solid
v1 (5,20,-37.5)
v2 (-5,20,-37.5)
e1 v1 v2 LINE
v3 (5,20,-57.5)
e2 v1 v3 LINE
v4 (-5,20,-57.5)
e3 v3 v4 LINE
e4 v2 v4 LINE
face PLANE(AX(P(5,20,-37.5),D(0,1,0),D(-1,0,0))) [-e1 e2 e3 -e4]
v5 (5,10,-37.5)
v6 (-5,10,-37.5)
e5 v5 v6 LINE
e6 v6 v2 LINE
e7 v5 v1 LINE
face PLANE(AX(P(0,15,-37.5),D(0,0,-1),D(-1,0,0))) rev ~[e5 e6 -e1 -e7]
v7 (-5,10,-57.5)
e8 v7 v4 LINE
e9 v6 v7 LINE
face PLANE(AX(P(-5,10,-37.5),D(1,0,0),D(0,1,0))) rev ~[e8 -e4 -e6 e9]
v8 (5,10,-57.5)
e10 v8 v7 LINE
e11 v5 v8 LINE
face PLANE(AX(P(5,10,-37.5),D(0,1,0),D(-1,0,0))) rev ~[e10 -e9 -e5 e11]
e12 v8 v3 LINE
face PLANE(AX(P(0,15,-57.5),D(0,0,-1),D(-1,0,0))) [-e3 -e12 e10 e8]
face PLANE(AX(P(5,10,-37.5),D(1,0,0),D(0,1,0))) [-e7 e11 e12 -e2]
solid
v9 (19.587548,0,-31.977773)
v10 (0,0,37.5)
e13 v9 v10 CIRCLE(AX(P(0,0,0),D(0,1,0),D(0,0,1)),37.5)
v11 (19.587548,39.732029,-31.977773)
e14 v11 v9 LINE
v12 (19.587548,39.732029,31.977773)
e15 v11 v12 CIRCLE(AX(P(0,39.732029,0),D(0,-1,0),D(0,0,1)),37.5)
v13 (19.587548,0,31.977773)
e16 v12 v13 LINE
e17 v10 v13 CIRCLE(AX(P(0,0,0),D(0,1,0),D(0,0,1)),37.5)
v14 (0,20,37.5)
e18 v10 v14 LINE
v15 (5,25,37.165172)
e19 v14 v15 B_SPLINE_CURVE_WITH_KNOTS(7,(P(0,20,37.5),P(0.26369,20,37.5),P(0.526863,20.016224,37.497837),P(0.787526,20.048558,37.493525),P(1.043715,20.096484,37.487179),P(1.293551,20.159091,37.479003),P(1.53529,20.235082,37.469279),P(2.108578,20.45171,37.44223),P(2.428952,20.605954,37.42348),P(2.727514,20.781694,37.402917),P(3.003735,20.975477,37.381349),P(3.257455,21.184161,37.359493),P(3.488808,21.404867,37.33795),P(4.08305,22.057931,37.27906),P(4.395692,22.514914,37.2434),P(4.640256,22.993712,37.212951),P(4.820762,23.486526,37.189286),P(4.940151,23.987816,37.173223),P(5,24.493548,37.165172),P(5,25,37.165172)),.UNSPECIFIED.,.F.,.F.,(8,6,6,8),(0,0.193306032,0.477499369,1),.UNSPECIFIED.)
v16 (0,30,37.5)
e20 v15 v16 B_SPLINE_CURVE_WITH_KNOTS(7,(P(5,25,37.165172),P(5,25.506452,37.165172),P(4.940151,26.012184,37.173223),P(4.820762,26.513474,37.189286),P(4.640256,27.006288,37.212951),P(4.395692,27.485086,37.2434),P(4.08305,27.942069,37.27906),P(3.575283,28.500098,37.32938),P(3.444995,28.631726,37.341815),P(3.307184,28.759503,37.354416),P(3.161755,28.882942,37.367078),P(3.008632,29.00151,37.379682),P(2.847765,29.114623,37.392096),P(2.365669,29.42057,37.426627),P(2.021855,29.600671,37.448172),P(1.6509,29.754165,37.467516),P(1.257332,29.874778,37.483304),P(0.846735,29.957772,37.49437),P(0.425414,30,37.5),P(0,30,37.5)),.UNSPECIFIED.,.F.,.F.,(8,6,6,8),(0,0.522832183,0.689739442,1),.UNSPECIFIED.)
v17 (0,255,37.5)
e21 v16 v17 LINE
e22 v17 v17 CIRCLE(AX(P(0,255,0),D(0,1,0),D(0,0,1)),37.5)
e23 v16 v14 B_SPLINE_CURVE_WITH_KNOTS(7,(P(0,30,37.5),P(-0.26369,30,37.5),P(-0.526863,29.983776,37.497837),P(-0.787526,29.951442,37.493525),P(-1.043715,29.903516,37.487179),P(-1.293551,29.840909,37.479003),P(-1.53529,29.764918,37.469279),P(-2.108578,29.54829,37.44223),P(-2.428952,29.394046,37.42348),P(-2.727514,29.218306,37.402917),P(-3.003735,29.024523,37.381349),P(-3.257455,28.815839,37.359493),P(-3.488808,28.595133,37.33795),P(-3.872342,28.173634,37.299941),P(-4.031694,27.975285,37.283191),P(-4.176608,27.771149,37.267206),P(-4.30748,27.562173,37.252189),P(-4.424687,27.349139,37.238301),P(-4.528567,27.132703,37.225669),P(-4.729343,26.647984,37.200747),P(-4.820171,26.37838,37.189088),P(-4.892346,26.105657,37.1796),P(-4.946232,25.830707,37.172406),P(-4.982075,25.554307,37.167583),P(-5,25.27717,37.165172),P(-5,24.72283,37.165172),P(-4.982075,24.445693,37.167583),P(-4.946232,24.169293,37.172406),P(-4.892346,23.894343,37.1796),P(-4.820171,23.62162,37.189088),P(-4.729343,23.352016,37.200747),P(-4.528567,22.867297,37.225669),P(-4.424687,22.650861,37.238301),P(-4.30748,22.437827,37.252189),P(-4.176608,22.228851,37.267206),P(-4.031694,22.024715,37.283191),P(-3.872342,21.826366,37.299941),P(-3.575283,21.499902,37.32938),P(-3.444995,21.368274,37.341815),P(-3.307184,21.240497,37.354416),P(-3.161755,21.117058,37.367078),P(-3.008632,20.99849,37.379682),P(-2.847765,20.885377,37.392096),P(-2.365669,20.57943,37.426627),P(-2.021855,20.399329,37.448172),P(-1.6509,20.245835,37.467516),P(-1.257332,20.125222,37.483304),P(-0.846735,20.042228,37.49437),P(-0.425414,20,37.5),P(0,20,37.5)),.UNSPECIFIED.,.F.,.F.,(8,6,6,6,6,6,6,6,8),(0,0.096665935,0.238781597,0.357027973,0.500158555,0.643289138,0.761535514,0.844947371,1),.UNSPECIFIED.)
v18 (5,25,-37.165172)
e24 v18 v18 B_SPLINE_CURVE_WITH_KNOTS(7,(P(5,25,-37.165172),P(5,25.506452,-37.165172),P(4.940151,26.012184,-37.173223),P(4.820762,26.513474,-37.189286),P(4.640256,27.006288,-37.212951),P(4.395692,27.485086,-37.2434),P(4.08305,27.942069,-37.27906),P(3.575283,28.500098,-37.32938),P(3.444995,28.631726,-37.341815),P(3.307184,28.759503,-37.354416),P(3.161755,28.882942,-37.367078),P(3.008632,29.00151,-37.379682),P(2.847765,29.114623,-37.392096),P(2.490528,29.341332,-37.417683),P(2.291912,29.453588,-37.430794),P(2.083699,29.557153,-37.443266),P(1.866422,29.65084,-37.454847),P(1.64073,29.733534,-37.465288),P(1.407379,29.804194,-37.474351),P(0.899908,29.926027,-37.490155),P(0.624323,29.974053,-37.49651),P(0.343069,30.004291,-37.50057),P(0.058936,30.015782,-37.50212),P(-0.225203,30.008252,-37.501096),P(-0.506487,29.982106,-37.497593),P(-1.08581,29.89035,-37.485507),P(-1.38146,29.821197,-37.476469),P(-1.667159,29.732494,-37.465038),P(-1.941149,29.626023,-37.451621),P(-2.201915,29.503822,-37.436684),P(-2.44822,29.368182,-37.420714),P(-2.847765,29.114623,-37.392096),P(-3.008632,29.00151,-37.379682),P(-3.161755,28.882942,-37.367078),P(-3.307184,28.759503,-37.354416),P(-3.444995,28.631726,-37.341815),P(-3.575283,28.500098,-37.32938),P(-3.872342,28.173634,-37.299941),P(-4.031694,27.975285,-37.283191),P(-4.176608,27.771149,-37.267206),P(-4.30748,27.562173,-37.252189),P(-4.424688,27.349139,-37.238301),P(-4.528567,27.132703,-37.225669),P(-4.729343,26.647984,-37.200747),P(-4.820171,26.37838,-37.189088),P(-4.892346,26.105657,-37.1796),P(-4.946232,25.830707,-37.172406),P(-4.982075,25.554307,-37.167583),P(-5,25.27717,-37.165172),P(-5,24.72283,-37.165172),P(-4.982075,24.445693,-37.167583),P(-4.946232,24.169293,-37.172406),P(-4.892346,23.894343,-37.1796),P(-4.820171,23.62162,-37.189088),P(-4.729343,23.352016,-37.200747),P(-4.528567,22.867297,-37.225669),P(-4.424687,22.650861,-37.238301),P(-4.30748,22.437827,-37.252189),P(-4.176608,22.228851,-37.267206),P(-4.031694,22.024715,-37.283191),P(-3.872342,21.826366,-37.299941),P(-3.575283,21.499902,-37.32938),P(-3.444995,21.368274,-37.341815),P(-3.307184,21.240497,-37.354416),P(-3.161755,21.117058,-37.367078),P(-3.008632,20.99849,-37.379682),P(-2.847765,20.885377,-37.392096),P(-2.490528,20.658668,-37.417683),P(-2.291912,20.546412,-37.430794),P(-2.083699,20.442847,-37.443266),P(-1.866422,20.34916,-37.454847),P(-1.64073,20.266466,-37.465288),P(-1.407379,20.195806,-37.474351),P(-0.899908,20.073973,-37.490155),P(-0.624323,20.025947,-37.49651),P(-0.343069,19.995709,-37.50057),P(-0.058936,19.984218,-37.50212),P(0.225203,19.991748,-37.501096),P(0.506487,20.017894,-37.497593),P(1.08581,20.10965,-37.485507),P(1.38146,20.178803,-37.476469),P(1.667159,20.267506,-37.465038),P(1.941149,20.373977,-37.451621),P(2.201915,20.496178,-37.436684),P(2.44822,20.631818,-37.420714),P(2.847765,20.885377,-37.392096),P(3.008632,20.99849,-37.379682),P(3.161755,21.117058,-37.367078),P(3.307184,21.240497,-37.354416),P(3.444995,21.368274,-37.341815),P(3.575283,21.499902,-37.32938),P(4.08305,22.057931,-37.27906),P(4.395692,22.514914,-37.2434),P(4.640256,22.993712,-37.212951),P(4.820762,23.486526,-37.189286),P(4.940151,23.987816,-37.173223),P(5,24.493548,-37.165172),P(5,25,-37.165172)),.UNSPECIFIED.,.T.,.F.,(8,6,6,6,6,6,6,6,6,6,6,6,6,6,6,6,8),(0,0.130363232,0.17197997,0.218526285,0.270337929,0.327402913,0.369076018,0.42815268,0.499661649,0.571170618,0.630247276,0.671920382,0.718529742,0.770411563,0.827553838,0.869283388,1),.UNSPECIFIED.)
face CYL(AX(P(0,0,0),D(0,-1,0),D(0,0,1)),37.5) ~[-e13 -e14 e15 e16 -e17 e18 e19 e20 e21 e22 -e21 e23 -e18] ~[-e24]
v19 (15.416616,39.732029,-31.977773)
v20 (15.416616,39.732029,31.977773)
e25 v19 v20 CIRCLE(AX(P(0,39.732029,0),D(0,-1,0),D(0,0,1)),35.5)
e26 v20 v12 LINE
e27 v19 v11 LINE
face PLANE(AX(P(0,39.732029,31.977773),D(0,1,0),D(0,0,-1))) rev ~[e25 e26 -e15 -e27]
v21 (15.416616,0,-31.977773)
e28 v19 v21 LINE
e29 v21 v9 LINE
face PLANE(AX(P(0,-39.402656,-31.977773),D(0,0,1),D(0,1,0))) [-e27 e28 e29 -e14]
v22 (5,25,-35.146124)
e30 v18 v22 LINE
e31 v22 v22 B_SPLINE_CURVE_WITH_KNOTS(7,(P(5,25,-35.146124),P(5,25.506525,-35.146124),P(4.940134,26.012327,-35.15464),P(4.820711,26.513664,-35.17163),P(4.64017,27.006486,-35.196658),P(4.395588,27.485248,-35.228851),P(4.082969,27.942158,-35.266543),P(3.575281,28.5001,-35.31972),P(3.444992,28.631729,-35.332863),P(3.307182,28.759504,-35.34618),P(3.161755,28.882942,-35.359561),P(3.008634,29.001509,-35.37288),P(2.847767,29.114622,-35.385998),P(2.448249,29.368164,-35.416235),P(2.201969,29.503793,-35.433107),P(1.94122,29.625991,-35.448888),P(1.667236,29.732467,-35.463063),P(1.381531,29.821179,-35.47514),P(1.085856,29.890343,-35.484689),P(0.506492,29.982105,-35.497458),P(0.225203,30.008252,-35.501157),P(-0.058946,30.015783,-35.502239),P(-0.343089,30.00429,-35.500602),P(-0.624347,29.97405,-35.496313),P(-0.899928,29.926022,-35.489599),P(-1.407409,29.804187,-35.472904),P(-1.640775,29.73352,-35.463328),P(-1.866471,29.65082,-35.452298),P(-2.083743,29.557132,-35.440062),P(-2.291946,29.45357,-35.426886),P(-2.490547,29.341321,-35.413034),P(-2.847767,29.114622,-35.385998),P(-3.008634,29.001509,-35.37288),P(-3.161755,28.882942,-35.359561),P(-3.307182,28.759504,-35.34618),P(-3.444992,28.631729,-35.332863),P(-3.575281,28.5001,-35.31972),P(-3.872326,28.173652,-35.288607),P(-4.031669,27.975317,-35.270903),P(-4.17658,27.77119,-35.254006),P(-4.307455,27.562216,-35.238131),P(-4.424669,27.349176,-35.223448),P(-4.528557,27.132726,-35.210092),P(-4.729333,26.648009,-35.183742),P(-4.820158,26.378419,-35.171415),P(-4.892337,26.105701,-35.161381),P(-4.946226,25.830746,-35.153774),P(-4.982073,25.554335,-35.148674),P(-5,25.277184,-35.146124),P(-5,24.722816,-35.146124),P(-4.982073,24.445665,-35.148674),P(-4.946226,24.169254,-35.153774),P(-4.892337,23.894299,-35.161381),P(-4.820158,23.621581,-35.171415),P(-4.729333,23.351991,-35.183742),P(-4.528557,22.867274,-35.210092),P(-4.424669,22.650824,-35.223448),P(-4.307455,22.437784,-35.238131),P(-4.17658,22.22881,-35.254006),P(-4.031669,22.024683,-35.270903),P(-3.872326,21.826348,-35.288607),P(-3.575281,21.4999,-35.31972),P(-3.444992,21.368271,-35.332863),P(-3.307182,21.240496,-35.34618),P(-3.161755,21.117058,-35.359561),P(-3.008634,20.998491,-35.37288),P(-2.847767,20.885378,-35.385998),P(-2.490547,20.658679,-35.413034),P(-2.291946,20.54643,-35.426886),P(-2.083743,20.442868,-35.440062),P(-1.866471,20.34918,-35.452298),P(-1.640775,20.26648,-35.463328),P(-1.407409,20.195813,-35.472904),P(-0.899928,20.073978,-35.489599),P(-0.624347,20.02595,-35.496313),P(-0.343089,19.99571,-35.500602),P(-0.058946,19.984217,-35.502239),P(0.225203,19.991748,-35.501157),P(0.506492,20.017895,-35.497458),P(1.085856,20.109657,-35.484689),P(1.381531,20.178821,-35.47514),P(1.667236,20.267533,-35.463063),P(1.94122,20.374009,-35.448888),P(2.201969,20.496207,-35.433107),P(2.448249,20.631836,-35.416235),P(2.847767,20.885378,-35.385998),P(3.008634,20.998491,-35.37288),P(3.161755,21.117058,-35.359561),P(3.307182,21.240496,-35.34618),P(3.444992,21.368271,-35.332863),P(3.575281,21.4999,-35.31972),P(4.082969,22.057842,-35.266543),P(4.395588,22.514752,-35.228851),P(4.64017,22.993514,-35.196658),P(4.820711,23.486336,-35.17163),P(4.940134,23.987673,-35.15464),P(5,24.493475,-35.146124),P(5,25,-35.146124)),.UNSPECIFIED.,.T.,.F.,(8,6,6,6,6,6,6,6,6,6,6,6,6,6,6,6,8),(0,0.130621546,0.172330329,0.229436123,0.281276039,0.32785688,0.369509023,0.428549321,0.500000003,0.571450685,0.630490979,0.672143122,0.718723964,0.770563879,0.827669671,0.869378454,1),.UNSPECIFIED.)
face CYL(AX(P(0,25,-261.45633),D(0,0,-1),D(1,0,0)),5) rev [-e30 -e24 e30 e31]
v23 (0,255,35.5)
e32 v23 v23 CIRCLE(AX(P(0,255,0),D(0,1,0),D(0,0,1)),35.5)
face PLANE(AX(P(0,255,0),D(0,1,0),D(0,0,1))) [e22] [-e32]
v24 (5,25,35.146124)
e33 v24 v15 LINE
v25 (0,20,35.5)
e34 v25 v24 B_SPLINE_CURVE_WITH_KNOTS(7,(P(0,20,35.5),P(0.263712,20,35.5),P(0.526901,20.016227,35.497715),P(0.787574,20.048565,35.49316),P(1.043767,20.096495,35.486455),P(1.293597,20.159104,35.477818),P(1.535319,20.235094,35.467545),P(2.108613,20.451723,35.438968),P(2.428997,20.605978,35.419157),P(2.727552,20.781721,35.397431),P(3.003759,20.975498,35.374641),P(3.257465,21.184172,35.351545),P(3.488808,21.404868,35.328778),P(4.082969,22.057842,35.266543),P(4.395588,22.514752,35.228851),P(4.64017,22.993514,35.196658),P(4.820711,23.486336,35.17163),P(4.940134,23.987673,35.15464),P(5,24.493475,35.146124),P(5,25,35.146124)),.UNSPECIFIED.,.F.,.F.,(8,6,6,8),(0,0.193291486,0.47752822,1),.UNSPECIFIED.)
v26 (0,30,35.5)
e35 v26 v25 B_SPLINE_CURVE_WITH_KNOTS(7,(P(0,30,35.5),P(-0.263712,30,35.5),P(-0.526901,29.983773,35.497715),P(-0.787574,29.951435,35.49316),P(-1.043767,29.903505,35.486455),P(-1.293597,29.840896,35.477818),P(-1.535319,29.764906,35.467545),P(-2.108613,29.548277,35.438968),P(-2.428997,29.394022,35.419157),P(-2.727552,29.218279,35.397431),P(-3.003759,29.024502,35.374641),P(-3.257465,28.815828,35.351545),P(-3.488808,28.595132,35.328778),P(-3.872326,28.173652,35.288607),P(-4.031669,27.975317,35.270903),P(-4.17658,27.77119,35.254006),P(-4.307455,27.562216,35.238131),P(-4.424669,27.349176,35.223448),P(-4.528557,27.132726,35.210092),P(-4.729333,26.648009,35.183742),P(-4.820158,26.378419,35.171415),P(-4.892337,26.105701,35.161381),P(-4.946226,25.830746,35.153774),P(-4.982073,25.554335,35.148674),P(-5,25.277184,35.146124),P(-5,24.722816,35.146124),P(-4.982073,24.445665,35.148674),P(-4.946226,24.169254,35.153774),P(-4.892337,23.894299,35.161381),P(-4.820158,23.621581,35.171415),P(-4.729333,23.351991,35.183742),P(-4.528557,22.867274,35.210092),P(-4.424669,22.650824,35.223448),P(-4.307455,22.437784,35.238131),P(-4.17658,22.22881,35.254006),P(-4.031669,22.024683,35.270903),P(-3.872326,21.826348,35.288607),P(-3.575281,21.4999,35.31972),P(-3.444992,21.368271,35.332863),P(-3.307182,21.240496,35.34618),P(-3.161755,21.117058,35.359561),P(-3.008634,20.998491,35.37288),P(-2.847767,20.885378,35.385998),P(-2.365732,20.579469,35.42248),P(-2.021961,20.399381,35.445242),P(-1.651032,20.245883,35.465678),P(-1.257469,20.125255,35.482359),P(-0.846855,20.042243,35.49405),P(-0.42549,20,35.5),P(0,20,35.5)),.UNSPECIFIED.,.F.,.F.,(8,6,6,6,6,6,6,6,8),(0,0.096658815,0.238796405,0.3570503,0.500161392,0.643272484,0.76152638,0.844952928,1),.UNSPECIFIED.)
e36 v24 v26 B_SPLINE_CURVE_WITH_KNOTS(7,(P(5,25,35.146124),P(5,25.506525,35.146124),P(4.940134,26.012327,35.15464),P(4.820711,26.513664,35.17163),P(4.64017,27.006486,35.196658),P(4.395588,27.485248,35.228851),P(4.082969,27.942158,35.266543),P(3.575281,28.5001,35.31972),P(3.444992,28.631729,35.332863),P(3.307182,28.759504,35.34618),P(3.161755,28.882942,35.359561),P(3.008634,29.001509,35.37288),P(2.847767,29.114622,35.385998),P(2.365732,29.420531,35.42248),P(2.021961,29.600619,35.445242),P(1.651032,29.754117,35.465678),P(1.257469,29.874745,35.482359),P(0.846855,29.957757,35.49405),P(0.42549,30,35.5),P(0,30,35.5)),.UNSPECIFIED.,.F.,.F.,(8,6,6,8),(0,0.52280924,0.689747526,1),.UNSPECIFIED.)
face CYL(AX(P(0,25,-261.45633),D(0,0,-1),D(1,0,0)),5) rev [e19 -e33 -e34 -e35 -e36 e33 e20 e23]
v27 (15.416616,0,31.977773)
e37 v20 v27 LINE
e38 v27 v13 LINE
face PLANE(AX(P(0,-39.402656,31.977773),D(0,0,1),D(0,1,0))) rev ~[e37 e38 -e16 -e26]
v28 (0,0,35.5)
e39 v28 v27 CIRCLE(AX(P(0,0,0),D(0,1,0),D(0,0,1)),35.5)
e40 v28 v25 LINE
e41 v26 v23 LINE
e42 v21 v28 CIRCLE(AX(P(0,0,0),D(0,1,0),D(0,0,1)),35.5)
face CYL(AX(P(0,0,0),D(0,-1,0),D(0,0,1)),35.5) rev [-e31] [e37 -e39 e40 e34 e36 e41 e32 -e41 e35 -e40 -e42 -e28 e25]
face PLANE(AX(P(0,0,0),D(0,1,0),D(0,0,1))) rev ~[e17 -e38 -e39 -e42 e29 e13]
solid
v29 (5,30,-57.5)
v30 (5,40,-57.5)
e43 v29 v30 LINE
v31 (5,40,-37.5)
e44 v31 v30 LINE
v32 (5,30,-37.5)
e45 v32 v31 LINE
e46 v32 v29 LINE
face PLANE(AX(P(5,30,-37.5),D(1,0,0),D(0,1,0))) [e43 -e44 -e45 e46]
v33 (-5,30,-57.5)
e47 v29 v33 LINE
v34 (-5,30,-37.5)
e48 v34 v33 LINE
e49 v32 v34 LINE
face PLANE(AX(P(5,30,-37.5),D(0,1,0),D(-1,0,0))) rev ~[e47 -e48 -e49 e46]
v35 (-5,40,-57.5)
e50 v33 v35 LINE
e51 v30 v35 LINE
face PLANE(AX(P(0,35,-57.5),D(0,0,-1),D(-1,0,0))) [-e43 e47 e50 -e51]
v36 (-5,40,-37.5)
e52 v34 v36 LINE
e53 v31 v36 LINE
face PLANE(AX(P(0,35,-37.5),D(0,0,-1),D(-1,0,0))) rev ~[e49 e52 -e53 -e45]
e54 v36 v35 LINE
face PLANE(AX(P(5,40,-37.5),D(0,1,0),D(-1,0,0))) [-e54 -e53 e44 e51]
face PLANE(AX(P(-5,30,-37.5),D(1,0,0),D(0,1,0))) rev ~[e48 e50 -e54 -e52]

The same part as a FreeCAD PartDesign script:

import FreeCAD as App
import Part
import Sketcher
from FreeCAD import Vector
Q = App.Units.Quantity


def add_polygon(sketch, points):
    """Adds a closed chain of lines whose ends are joined by coincident constraints."""
    first, n = sketch.GeometryCount, len(points)
    for a, b in zip(points, points[1:] + points[:1]):
        sketch.addGeometry(Part.LineSegment(App.Vector(*a, 0), App.Vector(*b, 0)), False)
    for i in range(n):
        sketch.addConstraint(Sketcher.Constraint("Coincident", first + i, 2, first + (i + 1) % n, 1))

doc = App.newDocument("Part")
body = doc.addObject("PartDesign::Body", "Body")

# Sketch on XZ plane
sketch1 = doc.addObject("Sketcher::SketchObject", "Sketch")
body.addObject(sketch1)
sketch1.AttachmentSupport = (doc.XZ_Plane, [""])
sketch1.MapMode = "FlatFace"
sketch1.addGeometry(Part.Circle(Vector(0, 0, 0), Vector(0, 0, 1), 38), False)
sketch1.addGeometry(Part.Circle(Vector(0, 0, 0), Vector(0, 0, 1), 36), False)
sketch1.addConstraint(Sketcher.Constraint("Coincident", 0, 3, -1, 1))
sketch1.addConstraint(Sketcher.Constraint("Coincident", 1, 3, -1, 1))
sketch1.addConstraint(Sketcher.Constraint("Diameter", 0, Q("75 mm")))
sketch1.addConstraint(Sketcher.Constraint("Diameter", 1, Q("71 mm")))
pad1 = doc.addObject("PartDesign::Pad", "Pad")
body.addObject(pad1)
pad1.Profile = sketch1
pad1.Length = 255
pad1.Reversed = True

# Sketch on XY plane
sketch2 = doc.addObject("Sketcher::SketchObject", "Sketch001")
body.addObject(sketch2)
sketch2.AttachmentSupport = (doc.XY_Plane, [""])
sketch2.MapMode = "FlatFace"
sketch2.addGeometry(Part.Circle(Vector(0, 25, 0), Vector(0, 0, 1), 5), False)
sketch2.addConstraint(Sketcher.Constraint("PointOnObject", 0, 3, -2))
sketch2.addConstraint(Sketcher.Constraint("Diameter", 0, Q("10 mm")))
sketch2.addConstraint(Sketcher.Constraint("DistanceY", -1, 1, 0, 3, Q("25 mm")))
pocket1 = doc.addObject("PartDesign::Pocket", "Pocket")
body.addObject(pocket1)
pocket1.Profile = sketch2
pocket1.Type = "ThroughAll"
pocket1.Midplane = True

# Sketch on YZ plane
sketch3 = doc.addObject("Sketcher::SketchObject", "Sketch002")
body.addObject(sketch3)
sketch3.AttachmentSupport = (doc.YZ_Plane, [""])
sketch3.MapMode = "FlatFace"
add_polygon(sketch3, [(40, 32), (-39, 32), (-39, -32), (40, -32)])  # lines 0-3
sketch3.addConstraint(Sketcher.Constraint("Horizontal", 0))
sketch3.addConstraint(Sketcher.Constraint("Vertical", 1))
sketch3.addConstraint(Sketcher.Constraint("Horizontal", 2))
sketch3.addConstraint(Sketcher.Constraint("Vertical", 3))
sketch3.addConstraint(Sketcher.Constraint("DistanceX", 0, 2, 0, 1, Q("79.134685 mm")))
sketch3.addConstraint(Sketcher.Constraint("DistanceY", 1, 2, 1, 1, Q("63.955546 mm")))
sketch3.addConstraint(Sketcher.Constraint("DistanceX", -1, 1, 2, 2, Q("39.732029 mm")))
sketch3.addConstraint(Sketcher.Constraint("DistanceY", -1, 1, 0, 2, Q("31.977773 mm")))
pocket2 = doc.addObject("PartDesign::Pocket", "Pocket001")
body.addObject(pocket2)
pocket2.Profile = sketch3
pocket2.Type = "ThroughAll"
pocket2.Reversed = True
body2 = doc.addObject("PartDesign::Body", "Body001")

# Sketch on XY plane
sketch4 = doc.addObject("Sketcher::SketchObject", "Sketch003")
body2.addObject(sketch4)
sketch4.AttachmentSupport = (doc.getObject("XY_Plane001"), [""])
sketch4.MapMode = "FlatFace"
sketch4.AttachmentOffset = App.Placement(Vector(0, 0, -37.5), App.Rotation())
add_polygon(sketch4, [(5, 40), (5, 30), (-5, 30), (-5, 40)])  # lines 0-3
sketch4.addConstraint(Sketcher.Constraint("Vertical", 0))
sketch4.addConstraint(Sketcher.Constraint("Horizontal", 1))
sketch4.addConstraint(Sketcher.Constraint("Vertical", 2))
sketch4.addConstraint(Sketcher.Constraint("Horizontal", 3))
sketch4.addConstraint(Sketcher.Constraint("Equal", 3, 0))
sketch4.addConstraint(Sketcher.Constraint("DistanceX", 1, 2, 1, 1, Q("10 mm")))
sketch4.addConstraint(Sketcher.Constraint("DistanceX", -1, 1, 0, 2, Q("5 mm")))
sketch4.addConstraint(Sketcher.Constraint("DistanceY", -1, 1, 0, 2, Q("30 mm")))
pad2 = doc.addObject("PartDesign::Pad", "Pad001")
body2.addObject(pad2)
pad2.Profile = sketch4
pad2.Length = 20
pad2.Reversed = True
body3 = doc.addObject("PartDesign::Body", "Body002")

# Sketch on XY plane
sketch5 = doc.addObject("Sketcher::SketchObject", "Sketch004")
body3.addObject(sketch5)
sketch5.AttachmentSupport = (doc.getObject("XY_Plane002"), [""])
sketch5.MapMode = "FlatFace"
sketch5.AttachmentOffset = App.Placement(Vector(0, 0, -37.5), App.Rotation())
add_polygon(sketch5, [(5, 20), (5, 10), (-5, 10), (-5, 20)])  # lines 0-3
sketch5.addConstraint(Sketcher.Constraint("Vertical", 0))
sketch5.addConstraint(Sketcher.Constraint("Horizontal", 1))
sketch5.addConstraint(Sketcher.Constraint("Vertical", 2))
sketch5.addConstraint(Sketcher.Constraint("Horizontal", 3))
sketch5.addConstraint(Sketcher.Constraint("Equal", 3, 0))
sketch5.addConstraint(Sketcher.Constraint("DistanceX", 1, 2, 1, 1, Q("10 mm")))
sketch5.addConstraint(Sketcher.Constraint("DistanceX", -1, 1, 0, 2, Q("5 mm")))
sketch5.addConstraint(Sketcher.Constraint("DistanceY", -1, 1, 0, 2, Q("10 mm")))
pad3 = doc.addObject("PartDesign::Pad", "Pad002")
body3.addObject(pad3)
pad3.Profile = sketch5
pad3.Length = 20
pad3.Reversed = True

doc.recompute()
